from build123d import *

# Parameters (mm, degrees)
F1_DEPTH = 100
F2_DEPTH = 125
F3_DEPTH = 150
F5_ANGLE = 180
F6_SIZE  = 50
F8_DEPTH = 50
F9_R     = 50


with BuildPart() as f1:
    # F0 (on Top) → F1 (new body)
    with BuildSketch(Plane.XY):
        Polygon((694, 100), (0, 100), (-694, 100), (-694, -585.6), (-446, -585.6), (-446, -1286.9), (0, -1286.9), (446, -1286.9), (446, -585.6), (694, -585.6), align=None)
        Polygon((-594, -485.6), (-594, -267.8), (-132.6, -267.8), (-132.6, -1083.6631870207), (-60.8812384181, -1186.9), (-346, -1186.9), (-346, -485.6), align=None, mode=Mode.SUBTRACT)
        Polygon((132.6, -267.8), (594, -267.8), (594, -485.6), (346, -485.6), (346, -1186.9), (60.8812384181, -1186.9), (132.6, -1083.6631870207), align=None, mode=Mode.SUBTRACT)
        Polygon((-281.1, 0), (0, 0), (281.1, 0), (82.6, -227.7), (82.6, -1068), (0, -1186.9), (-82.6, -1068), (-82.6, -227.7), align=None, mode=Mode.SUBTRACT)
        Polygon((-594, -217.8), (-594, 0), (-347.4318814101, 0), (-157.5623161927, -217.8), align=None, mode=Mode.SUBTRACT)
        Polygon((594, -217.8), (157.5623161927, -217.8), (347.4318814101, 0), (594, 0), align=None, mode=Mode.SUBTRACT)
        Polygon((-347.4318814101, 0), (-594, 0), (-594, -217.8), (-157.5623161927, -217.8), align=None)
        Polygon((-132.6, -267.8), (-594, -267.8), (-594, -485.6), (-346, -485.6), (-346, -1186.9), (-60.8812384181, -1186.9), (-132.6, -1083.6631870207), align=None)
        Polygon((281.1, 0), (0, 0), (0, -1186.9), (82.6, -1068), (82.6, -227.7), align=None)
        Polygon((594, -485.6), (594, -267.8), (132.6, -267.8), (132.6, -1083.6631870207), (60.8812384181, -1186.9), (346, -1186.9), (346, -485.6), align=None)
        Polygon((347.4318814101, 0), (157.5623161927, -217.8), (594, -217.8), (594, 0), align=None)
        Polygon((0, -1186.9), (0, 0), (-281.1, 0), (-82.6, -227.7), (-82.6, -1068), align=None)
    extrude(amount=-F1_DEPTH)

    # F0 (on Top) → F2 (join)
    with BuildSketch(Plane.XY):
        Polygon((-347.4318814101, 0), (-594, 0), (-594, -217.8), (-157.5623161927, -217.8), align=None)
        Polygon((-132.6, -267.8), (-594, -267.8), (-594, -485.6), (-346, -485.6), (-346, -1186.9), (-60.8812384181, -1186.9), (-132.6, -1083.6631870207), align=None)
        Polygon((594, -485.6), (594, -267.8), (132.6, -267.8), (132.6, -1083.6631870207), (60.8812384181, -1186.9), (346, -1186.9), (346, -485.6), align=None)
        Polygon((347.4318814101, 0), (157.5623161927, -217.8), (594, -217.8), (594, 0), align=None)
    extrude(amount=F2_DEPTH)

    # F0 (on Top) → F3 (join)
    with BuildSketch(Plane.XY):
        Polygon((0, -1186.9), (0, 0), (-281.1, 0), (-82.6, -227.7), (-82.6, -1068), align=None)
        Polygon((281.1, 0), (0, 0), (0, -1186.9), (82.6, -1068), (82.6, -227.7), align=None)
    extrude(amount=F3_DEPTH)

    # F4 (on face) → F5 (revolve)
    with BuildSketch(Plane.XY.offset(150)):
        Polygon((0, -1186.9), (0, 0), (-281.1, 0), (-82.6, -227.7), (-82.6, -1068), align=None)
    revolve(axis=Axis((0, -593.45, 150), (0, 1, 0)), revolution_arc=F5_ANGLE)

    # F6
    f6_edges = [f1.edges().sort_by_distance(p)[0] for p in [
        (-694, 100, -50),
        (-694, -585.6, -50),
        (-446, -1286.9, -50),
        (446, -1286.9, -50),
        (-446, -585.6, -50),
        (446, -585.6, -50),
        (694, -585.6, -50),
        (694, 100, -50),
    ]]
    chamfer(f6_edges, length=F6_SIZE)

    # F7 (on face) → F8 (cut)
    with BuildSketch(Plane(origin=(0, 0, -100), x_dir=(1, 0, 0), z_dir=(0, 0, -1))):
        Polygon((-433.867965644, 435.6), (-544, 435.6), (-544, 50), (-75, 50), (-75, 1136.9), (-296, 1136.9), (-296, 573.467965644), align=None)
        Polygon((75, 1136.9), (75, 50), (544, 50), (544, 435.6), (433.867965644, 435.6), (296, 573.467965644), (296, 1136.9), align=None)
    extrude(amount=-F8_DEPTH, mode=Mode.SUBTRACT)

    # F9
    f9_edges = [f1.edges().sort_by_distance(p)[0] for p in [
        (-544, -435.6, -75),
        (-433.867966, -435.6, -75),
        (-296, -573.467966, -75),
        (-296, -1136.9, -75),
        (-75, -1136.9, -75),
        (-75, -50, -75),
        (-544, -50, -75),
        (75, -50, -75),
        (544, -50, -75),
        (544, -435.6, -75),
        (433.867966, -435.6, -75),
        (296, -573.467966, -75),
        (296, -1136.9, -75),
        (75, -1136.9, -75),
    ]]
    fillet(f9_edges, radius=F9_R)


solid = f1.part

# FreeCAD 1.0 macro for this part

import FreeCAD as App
import Part
import Sketcher


def edges_at(feature, points):
    """Names of the edges that pass closest to the given points."""
    edges = feature.Shape.Edges
    near = lambda p: min(range(len(edges)), key=lambda i: edges[i].distToShape(Part.Vertex(*p))[0])
    return sorted({f"Edge{near(p) + 1}" for p in points})


def add_polygon(sketch, points):
    """Adds a closed chain of lines whose ends are joined by coincident constraints."""
    first, n = sketch.GeometryCount, len(points)
    for a, b in zip(points, points[1:] + points[:1]):
        sketch.addGeometry(Part.LineSegment(App.Vector(*a, 0), App.Vector(*b, 0)), False)
    for i in range(n):
        sketch.addConstraint(Sketcher.Constraint("Coincident", first + i, 2, first + (i + 1) % n, 1))

doc = App.newDocument("Part")
body = doc.addObject("PartDesign::Body", "Body")

# Sketch on XY plane
sketch1 = doc.addObject("Sketcher::SketchObject", "Sketch")
body.addObject(sketch1)
sketch1.AttachmentSupport = (doc.XY_Plane, [""])
sketch1.MapMode = "FlatFace"
add_polygon(sketch1, [(694, 100), (-694, 100), (-694, -586), (-446, -586), (-446, -1287), (446, -1287), (446, -586), (694, -586)])  # lines 0-7
sketch1.addConstraint([
    Sketcher.Constraint("Horizontal", 0),
    Sketcher.Constraint("Vertical", 1),
    Sketcher.Constraint("Horizontal", 2),
    Sketcher.Constraint("Vertical", 3),
    Sketcher.Constraint("Horizontal", 4),
    Sketcher.Constraint("Vertical", 5),
    Sketcher.Constraint("Horizontal", 6),
    Sketcher.Constraint("Vertical", 7),
    Sketcher.Constraint("Symmetric", 2, 2, 5, 2, -2),
    Sketcher.Constraint("Equal", 2, 6),
    Sketcher.Constraint("DistanceX", 0, 2, 0, 1, 1388.0),
    Sketcher.Constraint("DistanceX", 2, 1, 2, 2, 248.0),
    Sketcher.Constraint("DistanceY", 1, 2, 1, 1, 685.6),
    Sketcher.Constraint("DistanceY", 3, 2, 3, 1, 701.3),
    Sketcher.Constraint("DistanceY", -1, 1, 0, 2, 100.0),
])
pad1 = doc.addObject("PartDesign::Pad", "Pad")
body.addObject(pad1)
pad1.Profile = sketch1
pad1.Length = 100
pad1.Reversed = True

# Sketch on XY plane
sketch2 = doc.addObject("Sketcher::SketchObject", "Sketch001")
body.addObject(sketch2)
sketch2.AttachmentSupport = (doc.XY_Plane, [""])
sketch2.MapMode = "FlatFace"
add_polygon(sketch2, [(-347, 0), (-594, 0), (-594, -218), (-158, -218)])  # lines 0-3
add_polygon(sketch2, [(-133, -268), (-594, -268), (-594, -486), (-346, -486), (-346, -1187), (-61, -1187), (-133, -1084)])  # lines 4-10
add_polygon(sketch2, [(594, -486), (594, -268), (133, -268), (133, -1084), (61, -1187), (346, -1187), (346, -486)])  # lines 11-17
add_polygon(sketch2, [(347, 0), (158, -218), (594, -218), (594, 0)])  # lines 18-21
sketch2.addConstraint([
    Sketcher.Constraint("Horizontal", 0),
    Sketcher.Constraint("Vertical", 1),
    Sketcher.Constraint("Horizontal", 2),
    Sketcher.Constraint("Horizontal", 4),
    Sketcher.Constraint("Vertical", 5),
    Sketcher.Constraint("Horizontal", 6),
    Sketcher.Constraint("Vertical", 7),
    Sketcher.Constraint("Horizontal", 8),
    Sketcher.Constraint("Vertical", 10),
    Sketcher.Constraint("Vertical", 11),
    Sketcher.Constraint("Horizontal", 12),
    Sketcher.Constraint("Vertical", 13),
    Sketcher.Constraint("Horizontal", 15),
    Sketcher.Constraint("Vertical", 16),
    Sketcher.Constraint("Horizontal", 17),
    Sketcher.Constraint("Horizontal", 19),
    Sketcher.Constraint("Vertical", 20),
    Sketcher.Constraint("Horizontal", 21),
    Sketcher.Constraint("Symmetric", 0, 2, 20, 2, -1, 1),
    Sketcher.Constraint("Symmetric", 4, 2, 11, 2, -2),
    Sketcher.Constraint("Symmetric", 9, 2, 13, 2, -2),
    Sketcher.Constraint("Symmetric", 8, 2, 14, 2, -2),
    Sketcher.Constraint("Symmetric", 6, 2, 16, 2, -2),
    Sketcher.Constraint("Symmetric", 2, 2, 18, 2, -2),
    Sketcher.Constraint("Symmetric", 3, 2, 21, 2, -2),
    Sketcher.Constraint("Vertical", 1, 2, 4, 2),
    Sketcher.Constraint("Equal", 1, 5),
    Sketcher.Constraint("DistanceX", 6, 1, 6, 2, 248.0),
    Sketcher.Constraint("DistanceX", 4, 2, 4, 1, 461.4),
    Sketcher.Constraint("DistanceY", 1, 2, 1, 1, 217.8),
    Sketcher.Constraint("DistanceY", 7, 2, 7, 1, 701.3),
    Sketcher.Constraint("DistanceX", 0, 2, -1, 1, 594.0),
    Sketcher.Constraint("DistanceY", 4, 2, 1, 2, 50.0),
    Sketcher.Constraint("Distance", 9, 125.7037),
    Sketcher.Constraint("DistanceX", 0, 2, 0, 1, 246.568119),
    Sketcher.Constraint("DistanceX", 8, 1, 8, 2, 285.118762),
    Sketcher.Constraint("DistanceX", 2, 1, 2, 2, 436.437684),
])
pad2 = doc.addObject("PartDesign::Pad", "Pad001")
body.addObject(pad2)
pad2.Profile = sketch2
pad2.Length = 125

# Sketch on XY plane
sketch3 = doc.addObject("Sketcher::SketchObject", "Sketch002")
body.addObject(sketch3)
sketch3.AttachmentSupport = (doc.XY_Plane, [""])
sketch3.MapMode = "FlatFace"
add_polygon(sketch3, [(-281, 0), (-83, -228), (-83, -1068), (0, -1187), (83, -1068), (83, -228), (281, 0)])  # lines 0-6
sketch3.addConstraint([
    Sketcher.Constraint("Vertical", 1),
    Sketcher.Constraint("Vertical", 4),
    Sketcher.Constraint("Horizontal", 6),
    Sketcher.Constraint("Symmetric", 5, 2, 6, 2, -1, 1),
    Sketcher.Constraint("Symmetric", 1, 2, 3, 2, -2),
    Sketcher.Constraint("PointOnObject", 2, 2, -2),
    Sketcher.Constraint("Horizontal", 0, 2, 4, 2),
    Sketcher.Constraint("DistanceX", 6, 2, 6, 1, 562.2),
    Sketcher.Constraint("DistanceY", 1, 2, 1, 1, 840.3),
    Sketcher.Constraint("DistanceY", 1, 2, -1, 1, 1068.0),
    Sketcher.Constraint("DistanceX", 0, 2, -1, 1, 82.6),
    Sketcher.Constraint("DistanceY", 2, 2, -1, 1, 1186.9),
])
pad3 = doc.addObject("PartDesign::Pad", "Pad002")
body.addObject(pad3)
pad3.Profile = sketch3
pad3.Length = 150

# Sketch on XY plane
sketch4 = doc.addObject("Sketcher::SketchObject", "Sketch003")
body.addObject(sketch4)
sketch4.AttachmentSupport = (doc.XY_Plane, [""])
sketch4.MapMode = "FlatFace"
sketch4.AttachmentOffset = App.Placement(App.Vector(0, 0, 150), App.Rotation())
add_polygon(sketch4, [(0, -1187), (0, 0), (-281, 0), (-83, -228), (-83, -1068)])  # lines 0-4
sketch4.addConstraint([
    Sketcher.Constraint("Vertical", 0),
    Sketcher.Constraint("Horizontal", 1),
    Sketcher.Constraint("Vertical", 3),
    Sketcher.Constraint("Coincident", 0, 2, -1, 1),
    Sketcher.Constraint("DistanceX", 1, 2, 1, 1, 281.1),
    Sketcher.Constraint("DistanceY", 0, 1, 0, 2, 1186.9),
    Sketcher.Constraint("DistanceY", 3, 2, 3, 1, 840.3),
    Sketcher.Constraint("DistanceY", 3, 2, -1, 1, 1068.0),
    Sketcher.Constraint("DistanceX", 2, 2, -1, 1, 82.6),
])
revolution = doc.addObject("PartDesign::Revolution", "Revolution")
body.addObject(revolution)
revolution.Profile = sketch4
revolution.ReferenceAxis = (sketch4, ["V_Axis"])
revolution.Angle = 180
doc.recompute()

chamfer = doc.addObject("PartDesign::Chamfer", "Chamfer")
body.addObject(chamfer)
chamfer.Base = (revolution, edges_at(revolution, [
    (-694, 100, -50),
    (-694, -585.6, -50),
    (-446, -1286.9, -50),
    (446, -1286.9, -50),
    (-446, -585.6, -50),
    (446, -585.6, -50),
    (694, -585.6, -50),
    (694, 100, -50),
]))
chamfer.Size = 50

# Sketch on XY plane
sketch5 = doc.addObject("Sketcher::SketchObject", "Sketch004")
body.addObject(sketch5)
sketch5.AttachmentSupport = (doc.XY_Plane, [""])
sketch5.MapMode = "FlatFace"
sketch5.AttachmentOffset = App.Placement(App.Vector(0, 0, -100), App.Rotation())
add_polygon(sketch5, [(-434, -436), (-544, -436), (-544, -50), (-75, -50), (-75, -1137), (-296, -1137), (-296, -573)])  # lines 0-6
add_polygon(sketch5, [(75, -1137), (75, -50), (544, -50), (544, -436), (434, -436), (296, -573), (296, -1137)])  # lines 7-13
sketch5.addConstraint([
    Sketcher.Constraint("Horizontal", 0),
    Sketcher.Constraint("Vertical", 1),
    Sketcher.Constraint("Horizontal", 2),
    Sketcher.Constraint("Vertical", 3),
    Sketcher.Constraint("Horizontal", 4),
    Sketcher.Constraint("Vertical", 5),
    Sketcher.Constraint("Vertical", 7),
    Sketcher.Constraint("Horizontal", 8),
    Sketcher.Constraint("Vertical", 9),
    Sketcher.Constraint("Horizontal", 10),
    Sketcher.Constraint("Vertical", 12),
    Sketcher.Constraint("Horizontal", 13),
    Sketcher.Constraint("Symmetric", 2, 2, 7, 2, -2),
    Sketcher.Constraint("Symmetric", 0, 2, 9, 2, -2),
    Sketcher.Constraint("Symmetric", 5, 2, 11, 2, -2),
    Sketcher.Constraint("Perpendicular", 6, 11),
    Sketcher.Constraint("Horizontal", 4, 2, 12, 2),
    Sketcher.Constraint("Equal", 0, 10),
    Sketcher.Constraint("DistanceX", 2, 1, 2, 2, 469.0),
    Sketcher.Constraint("DistanceX", 4, 2, 4, 1, 221.0),
    Sketcher.Constraint("DistanceY", 1, 1, 1, 2, 385.6),
    Sketcher.Constraint("DistanceY", 3, 2, 3, 1, 1086.9),
    Sketcher.Constraint("DistanceX", 0, 2, -1, 1, 544.0),
    Sketcher.Constraint("DistanceY", 1, 2, -1, 1, 50.0),
    Sketcher.Constraint("DistanceX", 0, 2, 0, 1, 110.132034),
])
pocket1 = doc.addObject("PartDesign::Pocket", "Pocket")
body.addObject(pocket1)
pocket1.Profile = sketch5
pocket1.Length = 50
pocket1.Reversed = True
doc.recompute()

fillet = doc.addObject("PartDesign::Fillet", "Fillet")
body.addObject(fillet)
fillet.Base = (pocket1, edges_at(pocket1, [
    (-544, -435.6, -75),
    (-433.868, -435.6, -75),
    (-296, -573.468, -75),
    (-296, -1136.9, -75),
    (-75, -1136.9, -75),
    (-75, -50, -75),
    (-544, -50, -75),
    (75, -50, -75),
    (544, -50, -75),
    (544, -435.6, -75),
    (433.868, -435.6, -75),
    (296, -573.468, -75),
    (296, -1136.9, -75),
    (75, -1136.9, -75),
]))
fillet.Radius = 50

doc.recompute()
